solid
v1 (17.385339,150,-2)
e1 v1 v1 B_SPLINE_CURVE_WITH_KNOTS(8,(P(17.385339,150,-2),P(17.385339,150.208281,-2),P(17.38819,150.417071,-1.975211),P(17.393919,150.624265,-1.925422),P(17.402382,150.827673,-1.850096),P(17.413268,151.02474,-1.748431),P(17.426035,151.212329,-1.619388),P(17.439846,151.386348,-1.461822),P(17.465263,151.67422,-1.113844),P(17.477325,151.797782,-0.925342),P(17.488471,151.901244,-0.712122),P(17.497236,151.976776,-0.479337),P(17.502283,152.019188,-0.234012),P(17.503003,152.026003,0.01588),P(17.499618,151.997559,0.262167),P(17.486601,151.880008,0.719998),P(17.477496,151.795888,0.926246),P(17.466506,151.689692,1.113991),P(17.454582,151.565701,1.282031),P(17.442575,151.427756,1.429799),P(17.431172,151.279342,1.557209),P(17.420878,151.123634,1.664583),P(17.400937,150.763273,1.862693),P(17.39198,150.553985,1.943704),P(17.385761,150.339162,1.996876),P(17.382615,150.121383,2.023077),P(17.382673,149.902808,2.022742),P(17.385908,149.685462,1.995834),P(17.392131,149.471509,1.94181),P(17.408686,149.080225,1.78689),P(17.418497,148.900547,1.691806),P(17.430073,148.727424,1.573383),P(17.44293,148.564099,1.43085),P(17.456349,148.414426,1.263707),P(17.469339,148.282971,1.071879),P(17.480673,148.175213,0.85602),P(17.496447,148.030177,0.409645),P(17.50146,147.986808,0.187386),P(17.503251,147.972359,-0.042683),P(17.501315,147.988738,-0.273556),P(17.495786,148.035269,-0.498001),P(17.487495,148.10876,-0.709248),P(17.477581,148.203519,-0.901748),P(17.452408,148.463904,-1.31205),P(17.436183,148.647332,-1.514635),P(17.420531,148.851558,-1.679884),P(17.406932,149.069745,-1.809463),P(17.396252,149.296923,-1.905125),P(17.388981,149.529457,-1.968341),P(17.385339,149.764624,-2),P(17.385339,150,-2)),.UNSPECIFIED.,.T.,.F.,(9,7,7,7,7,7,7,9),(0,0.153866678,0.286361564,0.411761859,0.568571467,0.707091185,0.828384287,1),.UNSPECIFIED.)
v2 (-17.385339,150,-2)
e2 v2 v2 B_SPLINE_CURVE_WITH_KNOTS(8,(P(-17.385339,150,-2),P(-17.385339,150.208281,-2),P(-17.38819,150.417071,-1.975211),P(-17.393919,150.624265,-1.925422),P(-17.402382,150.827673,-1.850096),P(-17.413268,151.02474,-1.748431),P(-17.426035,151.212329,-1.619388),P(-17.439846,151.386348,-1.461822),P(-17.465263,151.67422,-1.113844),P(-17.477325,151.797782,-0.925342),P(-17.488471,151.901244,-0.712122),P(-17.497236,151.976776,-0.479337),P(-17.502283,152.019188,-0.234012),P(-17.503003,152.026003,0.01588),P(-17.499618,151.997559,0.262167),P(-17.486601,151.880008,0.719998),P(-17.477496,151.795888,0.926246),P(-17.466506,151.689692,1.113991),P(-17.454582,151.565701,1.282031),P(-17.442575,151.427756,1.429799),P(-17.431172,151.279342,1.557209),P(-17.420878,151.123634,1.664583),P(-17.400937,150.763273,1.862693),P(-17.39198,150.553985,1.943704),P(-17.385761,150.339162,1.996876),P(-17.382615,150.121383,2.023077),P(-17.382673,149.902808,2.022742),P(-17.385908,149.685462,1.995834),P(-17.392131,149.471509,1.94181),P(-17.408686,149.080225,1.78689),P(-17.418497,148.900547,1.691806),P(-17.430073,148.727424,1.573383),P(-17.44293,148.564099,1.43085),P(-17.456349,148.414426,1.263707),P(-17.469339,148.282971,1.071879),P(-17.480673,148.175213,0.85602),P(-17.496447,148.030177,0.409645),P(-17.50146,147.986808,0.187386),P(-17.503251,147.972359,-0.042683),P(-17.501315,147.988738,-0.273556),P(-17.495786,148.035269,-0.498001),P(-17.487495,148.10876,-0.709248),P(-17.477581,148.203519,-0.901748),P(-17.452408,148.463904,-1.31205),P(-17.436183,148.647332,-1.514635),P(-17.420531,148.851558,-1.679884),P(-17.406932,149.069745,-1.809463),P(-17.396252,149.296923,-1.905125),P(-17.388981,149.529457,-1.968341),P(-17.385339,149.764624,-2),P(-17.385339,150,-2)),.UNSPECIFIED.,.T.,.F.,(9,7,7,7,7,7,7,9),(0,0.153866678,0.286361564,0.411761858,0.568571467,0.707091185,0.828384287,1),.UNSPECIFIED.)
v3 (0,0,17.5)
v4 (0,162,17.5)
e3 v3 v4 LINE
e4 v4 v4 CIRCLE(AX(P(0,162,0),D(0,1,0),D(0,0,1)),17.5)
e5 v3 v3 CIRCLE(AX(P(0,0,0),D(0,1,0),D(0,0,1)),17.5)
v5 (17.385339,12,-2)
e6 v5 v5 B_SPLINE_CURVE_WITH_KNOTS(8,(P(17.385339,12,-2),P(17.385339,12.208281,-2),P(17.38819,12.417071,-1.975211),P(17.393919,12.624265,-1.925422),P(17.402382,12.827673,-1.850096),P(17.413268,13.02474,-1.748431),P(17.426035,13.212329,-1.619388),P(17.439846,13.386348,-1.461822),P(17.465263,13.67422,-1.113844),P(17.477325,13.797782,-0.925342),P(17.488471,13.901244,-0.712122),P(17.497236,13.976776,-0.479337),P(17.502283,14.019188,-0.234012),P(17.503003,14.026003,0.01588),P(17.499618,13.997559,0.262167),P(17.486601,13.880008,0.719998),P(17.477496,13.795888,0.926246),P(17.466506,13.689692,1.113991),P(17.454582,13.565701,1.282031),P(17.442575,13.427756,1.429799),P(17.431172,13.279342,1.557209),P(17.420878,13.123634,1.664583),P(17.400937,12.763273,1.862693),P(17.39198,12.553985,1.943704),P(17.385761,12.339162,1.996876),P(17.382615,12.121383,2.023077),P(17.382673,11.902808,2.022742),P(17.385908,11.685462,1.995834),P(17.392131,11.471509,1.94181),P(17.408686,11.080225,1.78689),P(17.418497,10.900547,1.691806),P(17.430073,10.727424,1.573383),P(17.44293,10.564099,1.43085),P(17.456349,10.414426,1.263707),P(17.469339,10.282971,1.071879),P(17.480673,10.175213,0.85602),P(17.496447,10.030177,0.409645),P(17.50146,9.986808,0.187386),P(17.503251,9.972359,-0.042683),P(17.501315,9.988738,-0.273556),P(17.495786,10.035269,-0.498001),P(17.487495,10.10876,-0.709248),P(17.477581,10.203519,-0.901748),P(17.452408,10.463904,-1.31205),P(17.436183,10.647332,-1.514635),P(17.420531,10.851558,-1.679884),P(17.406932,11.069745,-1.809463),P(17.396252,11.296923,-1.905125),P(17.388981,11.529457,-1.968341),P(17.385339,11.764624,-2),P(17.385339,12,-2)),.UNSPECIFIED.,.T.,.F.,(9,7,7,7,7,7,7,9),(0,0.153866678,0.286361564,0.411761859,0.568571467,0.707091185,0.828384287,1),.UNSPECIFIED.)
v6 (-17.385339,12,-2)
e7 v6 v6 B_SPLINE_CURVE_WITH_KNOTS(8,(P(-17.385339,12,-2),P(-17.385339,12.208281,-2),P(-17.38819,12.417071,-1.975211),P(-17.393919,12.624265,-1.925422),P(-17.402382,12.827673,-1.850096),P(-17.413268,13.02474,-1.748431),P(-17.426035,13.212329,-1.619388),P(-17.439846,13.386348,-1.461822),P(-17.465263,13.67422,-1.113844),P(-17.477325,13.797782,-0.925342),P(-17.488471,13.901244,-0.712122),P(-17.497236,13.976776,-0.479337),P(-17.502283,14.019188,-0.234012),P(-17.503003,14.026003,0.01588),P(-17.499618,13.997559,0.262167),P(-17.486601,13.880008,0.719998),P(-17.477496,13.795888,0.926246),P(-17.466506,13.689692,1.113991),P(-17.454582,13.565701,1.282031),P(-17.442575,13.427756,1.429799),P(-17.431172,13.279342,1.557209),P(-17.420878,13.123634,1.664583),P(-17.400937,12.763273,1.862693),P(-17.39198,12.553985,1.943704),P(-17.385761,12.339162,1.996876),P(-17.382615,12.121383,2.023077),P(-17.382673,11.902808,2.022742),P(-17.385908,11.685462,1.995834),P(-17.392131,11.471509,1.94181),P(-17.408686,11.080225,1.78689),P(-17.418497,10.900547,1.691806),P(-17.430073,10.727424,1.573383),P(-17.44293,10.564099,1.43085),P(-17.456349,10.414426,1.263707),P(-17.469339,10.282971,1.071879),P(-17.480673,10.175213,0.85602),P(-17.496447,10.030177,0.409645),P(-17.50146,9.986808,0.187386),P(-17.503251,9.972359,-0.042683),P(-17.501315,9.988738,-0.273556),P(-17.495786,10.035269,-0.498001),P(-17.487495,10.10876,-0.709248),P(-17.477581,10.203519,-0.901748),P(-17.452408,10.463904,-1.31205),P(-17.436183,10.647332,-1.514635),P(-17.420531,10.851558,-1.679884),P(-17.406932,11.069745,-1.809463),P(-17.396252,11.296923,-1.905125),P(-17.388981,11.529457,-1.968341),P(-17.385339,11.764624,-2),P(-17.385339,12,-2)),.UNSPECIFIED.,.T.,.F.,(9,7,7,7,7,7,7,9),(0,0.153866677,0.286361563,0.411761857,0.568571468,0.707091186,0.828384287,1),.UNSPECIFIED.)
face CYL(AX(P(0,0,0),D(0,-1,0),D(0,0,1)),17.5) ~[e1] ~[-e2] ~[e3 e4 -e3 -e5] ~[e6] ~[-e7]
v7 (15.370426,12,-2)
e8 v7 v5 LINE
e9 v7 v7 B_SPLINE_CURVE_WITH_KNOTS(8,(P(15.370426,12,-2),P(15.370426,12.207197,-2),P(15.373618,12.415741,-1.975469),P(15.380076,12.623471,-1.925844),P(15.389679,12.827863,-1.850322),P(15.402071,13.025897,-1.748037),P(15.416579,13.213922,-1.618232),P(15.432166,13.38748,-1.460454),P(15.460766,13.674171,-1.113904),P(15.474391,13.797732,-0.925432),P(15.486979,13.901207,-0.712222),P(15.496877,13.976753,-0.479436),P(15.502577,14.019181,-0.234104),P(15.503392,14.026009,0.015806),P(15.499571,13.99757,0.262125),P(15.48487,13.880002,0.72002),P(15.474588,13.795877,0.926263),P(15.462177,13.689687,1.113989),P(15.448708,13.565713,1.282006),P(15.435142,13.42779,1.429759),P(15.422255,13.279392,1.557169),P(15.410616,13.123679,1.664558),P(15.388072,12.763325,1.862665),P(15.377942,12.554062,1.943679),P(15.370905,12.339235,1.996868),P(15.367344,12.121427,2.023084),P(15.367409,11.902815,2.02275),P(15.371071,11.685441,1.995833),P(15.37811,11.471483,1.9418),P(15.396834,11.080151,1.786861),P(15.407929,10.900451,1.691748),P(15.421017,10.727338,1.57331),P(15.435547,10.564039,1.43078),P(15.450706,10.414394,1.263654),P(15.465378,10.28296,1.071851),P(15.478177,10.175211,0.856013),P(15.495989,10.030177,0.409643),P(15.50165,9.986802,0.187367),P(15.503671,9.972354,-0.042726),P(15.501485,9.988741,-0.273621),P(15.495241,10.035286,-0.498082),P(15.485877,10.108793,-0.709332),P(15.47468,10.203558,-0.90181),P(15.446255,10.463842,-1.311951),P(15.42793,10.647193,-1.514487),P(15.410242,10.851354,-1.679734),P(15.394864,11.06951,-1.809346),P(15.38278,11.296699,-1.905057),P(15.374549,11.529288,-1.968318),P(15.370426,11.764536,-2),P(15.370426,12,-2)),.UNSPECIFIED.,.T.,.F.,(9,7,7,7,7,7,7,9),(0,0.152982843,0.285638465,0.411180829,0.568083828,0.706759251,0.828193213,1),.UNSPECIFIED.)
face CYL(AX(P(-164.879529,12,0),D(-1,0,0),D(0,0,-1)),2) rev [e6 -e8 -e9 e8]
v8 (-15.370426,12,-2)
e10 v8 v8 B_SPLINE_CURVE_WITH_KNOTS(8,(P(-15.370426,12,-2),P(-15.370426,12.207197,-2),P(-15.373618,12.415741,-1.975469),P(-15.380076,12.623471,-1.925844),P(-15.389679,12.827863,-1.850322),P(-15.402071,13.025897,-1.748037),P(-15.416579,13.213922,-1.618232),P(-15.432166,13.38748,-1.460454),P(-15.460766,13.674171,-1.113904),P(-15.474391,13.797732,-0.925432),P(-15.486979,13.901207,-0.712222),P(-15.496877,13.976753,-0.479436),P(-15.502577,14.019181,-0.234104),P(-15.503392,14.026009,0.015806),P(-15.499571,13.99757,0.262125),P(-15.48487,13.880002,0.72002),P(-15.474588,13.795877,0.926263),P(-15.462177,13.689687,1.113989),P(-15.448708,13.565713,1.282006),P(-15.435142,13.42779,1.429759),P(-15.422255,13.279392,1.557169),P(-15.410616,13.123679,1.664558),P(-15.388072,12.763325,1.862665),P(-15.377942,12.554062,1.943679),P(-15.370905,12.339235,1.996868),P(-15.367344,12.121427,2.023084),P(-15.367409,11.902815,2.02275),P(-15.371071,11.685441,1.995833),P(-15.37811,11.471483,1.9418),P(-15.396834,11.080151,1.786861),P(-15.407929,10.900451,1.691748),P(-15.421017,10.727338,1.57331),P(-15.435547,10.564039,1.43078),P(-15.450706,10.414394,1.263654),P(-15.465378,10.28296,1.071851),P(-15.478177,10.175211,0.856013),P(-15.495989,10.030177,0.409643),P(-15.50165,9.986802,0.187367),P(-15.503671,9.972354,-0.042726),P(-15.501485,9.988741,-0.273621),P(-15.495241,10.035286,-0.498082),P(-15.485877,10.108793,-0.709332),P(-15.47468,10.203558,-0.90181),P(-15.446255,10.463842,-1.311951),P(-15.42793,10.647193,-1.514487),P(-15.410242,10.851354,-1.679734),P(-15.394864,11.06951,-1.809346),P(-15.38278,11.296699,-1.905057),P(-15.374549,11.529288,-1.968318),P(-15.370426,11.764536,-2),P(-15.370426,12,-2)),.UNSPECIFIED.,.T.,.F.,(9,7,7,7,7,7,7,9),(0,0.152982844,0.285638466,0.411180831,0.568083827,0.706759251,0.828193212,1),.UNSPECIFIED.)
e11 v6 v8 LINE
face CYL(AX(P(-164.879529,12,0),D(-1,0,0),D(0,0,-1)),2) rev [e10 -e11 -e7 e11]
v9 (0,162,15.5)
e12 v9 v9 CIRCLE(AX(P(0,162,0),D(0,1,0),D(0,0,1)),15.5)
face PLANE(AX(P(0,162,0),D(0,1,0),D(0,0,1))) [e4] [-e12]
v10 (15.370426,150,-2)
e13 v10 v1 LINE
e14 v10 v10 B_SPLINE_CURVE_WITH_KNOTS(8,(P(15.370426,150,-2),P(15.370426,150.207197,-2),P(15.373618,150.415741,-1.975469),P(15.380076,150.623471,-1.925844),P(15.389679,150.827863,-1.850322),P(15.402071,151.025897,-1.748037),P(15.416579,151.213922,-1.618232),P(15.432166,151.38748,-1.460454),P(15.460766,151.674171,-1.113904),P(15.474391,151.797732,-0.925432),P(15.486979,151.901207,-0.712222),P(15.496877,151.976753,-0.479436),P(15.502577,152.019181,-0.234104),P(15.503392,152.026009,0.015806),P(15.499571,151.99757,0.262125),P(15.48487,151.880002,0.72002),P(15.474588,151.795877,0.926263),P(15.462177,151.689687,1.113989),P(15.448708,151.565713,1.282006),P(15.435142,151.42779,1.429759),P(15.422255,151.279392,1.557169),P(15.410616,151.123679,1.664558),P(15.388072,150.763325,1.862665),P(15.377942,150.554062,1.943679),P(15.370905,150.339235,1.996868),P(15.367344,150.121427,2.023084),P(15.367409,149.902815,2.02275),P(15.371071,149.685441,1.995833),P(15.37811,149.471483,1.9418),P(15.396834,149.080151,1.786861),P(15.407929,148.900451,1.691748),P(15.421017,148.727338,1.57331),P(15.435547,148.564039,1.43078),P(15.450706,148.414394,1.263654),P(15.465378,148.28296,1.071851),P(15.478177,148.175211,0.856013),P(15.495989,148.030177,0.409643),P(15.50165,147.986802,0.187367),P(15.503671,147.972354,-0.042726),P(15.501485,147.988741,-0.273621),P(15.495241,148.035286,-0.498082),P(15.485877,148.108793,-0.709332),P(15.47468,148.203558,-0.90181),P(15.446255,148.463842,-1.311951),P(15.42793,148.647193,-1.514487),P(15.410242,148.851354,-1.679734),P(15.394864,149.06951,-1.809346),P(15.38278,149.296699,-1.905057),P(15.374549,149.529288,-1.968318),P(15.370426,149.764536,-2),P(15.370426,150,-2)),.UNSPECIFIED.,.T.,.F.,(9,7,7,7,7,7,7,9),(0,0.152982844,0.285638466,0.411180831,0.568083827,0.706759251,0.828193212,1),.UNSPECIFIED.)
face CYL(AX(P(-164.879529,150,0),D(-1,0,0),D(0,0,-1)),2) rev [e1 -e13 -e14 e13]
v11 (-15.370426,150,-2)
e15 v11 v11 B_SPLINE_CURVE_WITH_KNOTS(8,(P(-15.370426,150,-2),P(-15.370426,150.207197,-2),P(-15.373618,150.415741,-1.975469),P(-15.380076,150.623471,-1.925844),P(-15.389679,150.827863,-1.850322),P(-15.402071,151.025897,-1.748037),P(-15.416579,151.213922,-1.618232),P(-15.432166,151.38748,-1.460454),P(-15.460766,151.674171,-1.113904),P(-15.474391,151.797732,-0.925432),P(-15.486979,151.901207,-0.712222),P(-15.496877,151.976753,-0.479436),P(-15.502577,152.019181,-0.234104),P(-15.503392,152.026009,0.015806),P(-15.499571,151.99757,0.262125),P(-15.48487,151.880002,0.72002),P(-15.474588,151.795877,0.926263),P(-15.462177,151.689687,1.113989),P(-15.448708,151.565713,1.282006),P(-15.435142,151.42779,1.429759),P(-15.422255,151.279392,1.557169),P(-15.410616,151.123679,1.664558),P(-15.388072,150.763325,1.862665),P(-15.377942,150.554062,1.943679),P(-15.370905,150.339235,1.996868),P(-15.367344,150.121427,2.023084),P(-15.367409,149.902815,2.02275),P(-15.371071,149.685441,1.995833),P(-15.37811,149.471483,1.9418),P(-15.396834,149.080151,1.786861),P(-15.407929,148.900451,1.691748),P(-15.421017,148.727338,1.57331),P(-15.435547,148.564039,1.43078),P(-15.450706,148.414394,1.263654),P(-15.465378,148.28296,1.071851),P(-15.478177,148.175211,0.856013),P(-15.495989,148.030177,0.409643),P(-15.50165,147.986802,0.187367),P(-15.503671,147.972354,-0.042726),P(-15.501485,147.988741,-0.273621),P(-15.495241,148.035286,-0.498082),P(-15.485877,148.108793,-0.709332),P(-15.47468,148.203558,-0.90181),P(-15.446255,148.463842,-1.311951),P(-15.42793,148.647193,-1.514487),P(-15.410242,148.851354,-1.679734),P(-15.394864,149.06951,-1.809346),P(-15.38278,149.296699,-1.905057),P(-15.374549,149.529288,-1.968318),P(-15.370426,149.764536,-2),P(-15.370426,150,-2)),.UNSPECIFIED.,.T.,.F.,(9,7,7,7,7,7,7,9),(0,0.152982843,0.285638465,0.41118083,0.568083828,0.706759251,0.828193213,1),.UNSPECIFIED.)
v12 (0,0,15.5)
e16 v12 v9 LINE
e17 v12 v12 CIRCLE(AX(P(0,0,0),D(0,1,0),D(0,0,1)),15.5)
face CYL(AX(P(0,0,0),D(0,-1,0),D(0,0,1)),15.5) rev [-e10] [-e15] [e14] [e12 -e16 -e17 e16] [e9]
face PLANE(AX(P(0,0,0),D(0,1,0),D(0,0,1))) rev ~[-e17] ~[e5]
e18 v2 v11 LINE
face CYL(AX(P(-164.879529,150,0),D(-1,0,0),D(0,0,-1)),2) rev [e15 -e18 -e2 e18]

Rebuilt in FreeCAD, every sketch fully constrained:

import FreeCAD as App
import Part
import Sketcher
from FreeCAD import Vector
Q = App.Units.Quantity

doc = App.newDocument("Part")
params = doc.addObject("Spreadsheet::Sheet", "Params")
for row, (alias, value) in enumerate([
    ("sketch1_diameter", "35 mm"),
    ("sketch1_diameter2", "31 mm"),
    ("pad1_length", "162 mm"),
    ("sketch2_diameter", "4 mm"),
], start=1):
    params.set(f"A{row}", alias)
    params.set(f"B{row}", "=" + value)
    params.setAlias(f"B{row}", alias)

body = doc.addObject("PartDesign::Body", "Body")

# Sketch on XZ plane
sketch1 = body.newObject("Sketcher::SketchObject", "Sketch")
sketch1.AttachmentSupport = (doc.getObject("XZ_Plane"), [""])
sketch1.MapMode = "FlatFace"
sketch1.addGeometry([
    Part.Circle(Vector(0, 0, 0), Vector(0, 0, 1), 17.5),
    Part.Circle(Vector(0, 0, 0), Vector(0, 0, 1), 15.5),
], False)
sketch1.addConstraint([
    Sketcher.Constraint("Coincident", 0, 3, -1, 1),
    Sketcher.Constraint("Coincident", 1, 3, -1, 1),
    Sketcher.Constraint("Diameter", 0, Q("35 mm")),
    Sketcher.Constraint("Diameter", 1, Q("31 mm")),
])
sketch1.setExpression("Constraints[2]", "Params.sketch1_diameter")
sketch1.setExpression("Constraints[3]", "Params.sketch1_diameter2")
pad1 = body.newObject("PartDesign::Pad", "Pad")
pad1.Profile = sketch1
pad1.setExpression("Length", "Params.pad1_length")
pad1.Reversed = True

# Sketch on YZ plane
sketch2 = body.newObject("Sketcher::SketchObject", "Sketch001")
sketch2.AttachmentSupport = (doc.getObject("YZ_Plane"), [""])
sketch2.MapMode = "FlatFace"
sketch2.addGeometry([
    Part.Circle(Vector(150, 0, 0), Vector(0, 0, 1), 2),
    Part.Circle(Vector(12, 0, 0), Vector(0, 0, 1), 2),
], False)
sketch2.addConstraint([
    Sketcher.Constraint("Equal", 0, 1),
    Sketcher.Constraint("PointOnObject", 0, 3, -1),
    Sketcher.Constraint("PointOnObject", 1, 3, -1),
    Sketcher.Constraint("Diameter", 0, Q("4 mm")),
    Sketcher.Constraint("DistanceX", -1, 1, 0, 3, Q("150 mm")),
    Sketcher.Constraint("DistanceX", -1, 1, 1, 3, Q("12 mm")),
])
sketch2.setExpression("Constraints[3]", "Params.sketch2_diameter")
pocket1 = body.newObject("PartDesign::Pocket", "Pocket")
pocket1.Profile = sketch2
pocket1.Type = "ThroughAll"
pocket1.Midplane = True

doc.recompute()
